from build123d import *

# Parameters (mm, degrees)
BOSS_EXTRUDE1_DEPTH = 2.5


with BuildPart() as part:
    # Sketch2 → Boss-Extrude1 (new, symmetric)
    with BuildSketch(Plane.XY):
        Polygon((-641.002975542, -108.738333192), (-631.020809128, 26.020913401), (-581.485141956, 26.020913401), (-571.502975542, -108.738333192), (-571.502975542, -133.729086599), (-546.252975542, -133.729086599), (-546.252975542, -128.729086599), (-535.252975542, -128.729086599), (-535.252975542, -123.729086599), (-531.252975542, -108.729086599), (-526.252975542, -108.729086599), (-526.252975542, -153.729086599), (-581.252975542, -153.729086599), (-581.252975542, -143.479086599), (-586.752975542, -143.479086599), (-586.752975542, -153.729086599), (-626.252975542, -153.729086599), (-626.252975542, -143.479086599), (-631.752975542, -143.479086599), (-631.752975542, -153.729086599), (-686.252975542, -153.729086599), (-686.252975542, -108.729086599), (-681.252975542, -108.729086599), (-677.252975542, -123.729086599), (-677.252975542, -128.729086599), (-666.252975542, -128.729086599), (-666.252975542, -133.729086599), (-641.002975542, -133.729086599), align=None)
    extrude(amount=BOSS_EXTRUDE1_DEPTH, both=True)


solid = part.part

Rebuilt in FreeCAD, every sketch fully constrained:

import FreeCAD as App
import Part
import Sketcher

V = App.Vector


def add_polygon(sketch, points):
    """Adds a closed chain of lines whose ends are joined by coincident constraints."""
    first, n = sketch.GeometryCount, len(points)
    for a, b in zip(points, points[1:] + points[:1]):
        sketch.addGeometry(Part.LineSegment(App.Vector(*a, 0), App.Vector(*b, 0)), False)
    for i in range(n):
        sketch.addConstraint(Sketcher.Constraint("Coincident", first + i, 2, first + (i + 1) % n, 1))

doc = App.newDocument("Part")
params = doc.addObject("Spreadsheet::Sheet", "Params")
for row, (alias, value) in enumerate([
    ("sketch1_width", "11 mm"),
    ("sketch1_width2", "5 mm"),
    ("sketch1_width3", "55 mm"),
    ("sketch1_height", "45 mm"),
    ("sketch1_width4", "54.5 mm"),
    ("pad1_length", "5 mm"),
], start=1):
    params.set(f"A{row}", alias)
    params.set(f"B{row}", "=" + value)
    params.setAlias(f"B{row}", alias)

body = doc.addObject("PartDesign::Body", "Body")

# Sketch on XY plane
sketch1 = body.newObject("Sketcher::SketchObject", "Sketch")
sketch1.AttachmentSupport = (doc.getObject("XY_Plane"), [""])
sketch1.MapMode = "FlatFace"
add_polygon(sketch1, [(-631.020809, 26.020913), (-641.002976, -108.738333), (-641.002976, -133.729087), (-666.252976, -133.729087), (-666.252976, -128.729087), (-677.252976, -128.729087), (-677.252976, -123.729087), (-681.252976, -108.729087), (-686.252976, -108.729087), (-686.252976, -153.729087), (-631.752976, -153.729087), (-631.752976, -143.479087), (-626.252976, -143.479087), (-626.252976, -153.729087), (-586.752976, -153.729087), (-586.752976, -143.479087), (-581.252976, -143.479087), (-581.252976, -153.729087), (-526.252976, -153.729087), (-526.252976, -108.729087), (-531.252976, -108.729087), (-535.252976, -123.729087), (-535.252976, -128.729087), (-546.252976, -128.729087), (-546.252976, -133.729087), (-571.502976, -133.729087), (-571.502976, -108.738333), (-581.485142, 26.020913)])  # lines 0-27
sketch1.addConstraint([
    Sketcher.Constraint("Vertical", 1),
    Sketcher.Constraint("Horizontal", 2),
    Sketcher.Constraint("Vertical", 3),
    Sketcher.Constraint("Horizontal", 4),
    Sketcher.Constraint("Vertical", 5),
    Sketcher.Constraint("Horizontal", 7),
    Sketcher.Constraint("Vertical", 8),
    Sketcher.Constraint("Horizontal", 9),
    Sketcher.Constraint("Vertical", 10),
    Sketcher.Constraint("Horizontal", 11),
    Sketcher.Constraint("Vertical", 12),
    Sketcher.Constraint("Horizontal", 13),
    Sketcher.Constraint("Vertical", 14),
    Sketcher.Constraint("Horizontal", 15),
    Sketcher.Constraint("Vertical", 16),
    Sketcher.Constraint("Horizontal", 17),
    Sketcher.Constraint("Vertical", 18),
    Sketcher.Constraint("Horizontal", 19),
    Sketcher.Constraint("Vertical", 21),
    Sketcher.Constraint("Horizontal", 22),
    Sketcher.Constraint("Vertical", 23),
    Sketcher.Constraint("Horizontal", 24),
    Sketcher.Constraint("Vertical", 25),
    Sketcher.Constraint("Horizontal", 27),
    Sketcher.Constraint("Horizontal", 9, 2, 12, 2),
    Sketcher.Constraint("Horizontal", 11, 2, 14, 2),
    Sketcher.Constraint("Horizontal", 13, 2, 16, 2),
    Sketcher.Constraint("Horizontal", 7, 2, 18, 2),
    Sketcher.Constraint("Horizontal", 5, 2, 20, 2),
    Sketcher.Constraint("Horizontal", 4, 2, 21, 2),
    Sketcher.Constraint("Horizontal", 2, 2, 23, 2),
    Sketcher.Constraint("Horizontal", 0, 2, 25, 2),
    Sketcher.Constraint("Equal", 11, 15),
    Sketcher.Constraint("Equal", 7, 19),
    Sketcher.Constraint("Equal", 4, 22),
    Sketcher.Constraint("Equal", 2, 24),
    Sketcher.Constraint("Equal", 19, 3),
    Sketcher.Constraint("Equal", 3, 5),
    Sketcher.Constraint("Equal", 6, 20),
    Sketcher.Constraint("Equal", 0, 26),
    Sketcher.Constraint("DistanceX", 4, 2, 4, 1, 11.0),
    Sketcher.Constraint("DistanceX", 7, 2, 7, 1, 5.0),
    Sketcher.Constraint("DistanceX", 17, 1, 17, 2, 55.0),
    Sketcher.Constraint("DistanceY", 8, 2, 8, 1, 45.0),
    Sketcher.Constraint("DistanceX", 9, 1, 9, 2, 54.5),
    Sketcher.Constraint("DistanceX", 11, 1, 11, 2, 5.5),
    Sketcher.Constraint("DistanceX", 13, 1, 13, 2, 39.5),
    Sketcher.Constraint("DistanceX", 6, 2, 5, 2, 4.0),
    Sketcher.Constraint("DistanceY", 5, 2, 6, 2, 15.0),
    Sketcher.Constraint("DistanceX", 2, 2, 2, 1, 25.25),
    Sketcher.Constraint("DistanceY", 10, 1, 10, 2, 10.25),
    Sketcher.Constraint("DistanceY", 19, 2, 26, 2, 134.75),
    Sketcher.Constraint("Distance", 0, 135.128451),
    Sketcher.Constraint("DistanceX", 27, 2, 27, 1, 49.535667),
    Sketcher.Constraint("DistanceX", 26, 2, -1, 1, 581.485142),
    Sketcher.Constraint("DistanceY", 0, 2, -1, 1, 108.738333),
])
sketch1.setExpression("Constraints[68]", "Params.sketch1_width")
sketch1.setExpression("Constraints[69]", "Params.sketch1_width2")
sketch1.setExpression("Constraints[70]", "Params.sketch1_width3")
sketch1.setExpression("Constraints[71]", "Params.sketch1_height")
sketch1.setExpression("Constraints[72]", "Params.sketch1_width4")
pad1 = body.newObject("PartDesign::Pad", "Pad")
pad1.Profile = sketch1
pad1.setExpression("Length", "Params.pad1_length")
pad1.Midplane = True

doc.recompute()
